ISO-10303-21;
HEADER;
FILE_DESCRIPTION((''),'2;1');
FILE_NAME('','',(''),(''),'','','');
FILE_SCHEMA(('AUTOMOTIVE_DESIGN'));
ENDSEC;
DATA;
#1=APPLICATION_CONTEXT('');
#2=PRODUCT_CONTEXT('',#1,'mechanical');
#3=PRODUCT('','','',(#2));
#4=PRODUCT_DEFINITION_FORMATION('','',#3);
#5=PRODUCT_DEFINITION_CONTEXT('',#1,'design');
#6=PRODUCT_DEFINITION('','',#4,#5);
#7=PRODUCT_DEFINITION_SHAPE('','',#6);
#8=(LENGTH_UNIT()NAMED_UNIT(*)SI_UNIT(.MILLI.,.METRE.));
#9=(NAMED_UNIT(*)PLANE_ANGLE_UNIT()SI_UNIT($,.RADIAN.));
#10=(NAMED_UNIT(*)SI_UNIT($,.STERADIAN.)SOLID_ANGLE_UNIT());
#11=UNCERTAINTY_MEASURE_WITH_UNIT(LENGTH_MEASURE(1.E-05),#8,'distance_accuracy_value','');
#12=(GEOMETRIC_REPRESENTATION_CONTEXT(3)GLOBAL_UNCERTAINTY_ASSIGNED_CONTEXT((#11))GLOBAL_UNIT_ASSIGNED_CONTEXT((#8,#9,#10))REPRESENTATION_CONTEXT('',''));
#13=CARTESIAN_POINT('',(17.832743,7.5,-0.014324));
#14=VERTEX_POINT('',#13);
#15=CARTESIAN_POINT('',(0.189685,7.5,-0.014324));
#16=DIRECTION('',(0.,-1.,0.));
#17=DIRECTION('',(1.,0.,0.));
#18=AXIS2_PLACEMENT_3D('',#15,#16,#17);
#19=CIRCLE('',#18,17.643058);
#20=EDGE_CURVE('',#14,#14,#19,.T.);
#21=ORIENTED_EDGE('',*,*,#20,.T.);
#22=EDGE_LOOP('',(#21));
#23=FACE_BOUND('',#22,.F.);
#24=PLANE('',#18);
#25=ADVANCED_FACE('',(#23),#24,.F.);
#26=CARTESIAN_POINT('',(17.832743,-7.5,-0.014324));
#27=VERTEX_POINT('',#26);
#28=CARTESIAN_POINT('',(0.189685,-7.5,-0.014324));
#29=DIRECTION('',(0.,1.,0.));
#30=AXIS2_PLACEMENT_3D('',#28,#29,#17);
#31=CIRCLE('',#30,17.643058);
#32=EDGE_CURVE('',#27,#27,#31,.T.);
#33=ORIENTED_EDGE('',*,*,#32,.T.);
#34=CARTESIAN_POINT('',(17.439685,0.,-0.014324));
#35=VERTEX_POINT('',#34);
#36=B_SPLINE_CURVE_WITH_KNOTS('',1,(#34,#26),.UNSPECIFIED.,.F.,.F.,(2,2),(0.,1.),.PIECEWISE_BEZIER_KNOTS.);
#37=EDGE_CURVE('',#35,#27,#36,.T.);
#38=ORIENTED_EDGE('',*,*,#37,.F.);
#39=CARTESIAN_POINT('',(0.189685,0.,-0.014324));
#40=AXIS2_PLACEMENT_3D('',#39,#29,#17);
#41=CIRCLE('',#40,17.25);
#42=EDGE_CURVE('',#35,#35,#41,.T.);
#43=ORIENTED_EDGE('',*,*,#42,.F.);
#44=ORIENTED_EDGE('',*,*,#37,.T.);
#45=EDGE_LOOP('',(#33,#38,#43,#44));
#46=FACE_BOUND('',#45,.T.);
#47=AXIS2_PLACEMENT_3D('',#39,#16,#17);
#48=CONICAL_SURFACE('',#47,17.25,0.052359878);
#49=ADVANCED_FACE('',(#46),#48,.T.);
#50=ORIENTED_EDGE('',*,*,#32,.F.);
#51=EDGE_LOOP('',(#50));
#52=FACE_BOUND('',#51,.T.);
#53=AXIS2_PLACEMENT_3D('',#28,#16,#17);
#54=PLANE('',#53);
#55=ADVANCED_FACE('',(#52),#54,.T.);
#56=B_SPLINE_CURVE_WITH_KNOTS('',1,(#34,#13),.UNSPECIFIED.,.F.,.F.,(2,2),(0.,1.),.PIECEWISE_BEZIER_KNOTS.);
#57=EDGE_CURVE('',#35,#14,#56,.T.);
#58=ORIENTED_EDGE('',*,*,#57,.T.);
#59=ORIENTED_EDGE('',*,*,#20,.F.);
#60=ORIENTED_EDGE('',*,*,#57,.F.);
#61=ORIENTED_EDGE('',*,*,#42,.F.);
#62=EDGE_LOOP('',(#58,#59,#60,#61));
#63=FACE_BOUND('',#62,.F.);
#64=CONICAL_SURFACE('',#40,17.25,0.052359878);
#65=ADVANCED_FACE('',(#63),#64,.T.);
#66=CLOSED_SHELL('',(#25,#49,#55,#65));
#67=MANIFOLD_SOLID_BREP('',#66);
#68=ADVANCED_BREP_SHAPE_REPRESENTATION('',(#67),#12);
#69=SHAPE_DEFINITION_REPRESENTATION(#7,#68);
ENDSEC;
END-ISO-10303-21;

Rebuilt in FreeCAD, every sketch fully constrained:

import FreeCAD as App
import Part
import Sketcher
from FreeCAD import Vector

doc = App.newDocument("Part")
body = doc.addObject("PartDesign::Body", "Body")

# Sketch on XZ plane
sketch1 = body.newObject("Sketcher::SketchObject", "Sketch")
sketch1.AttachmentSupport = (doc.getObject("XZ_Plane"), [""])
sketch1.MapMode = "FlatFace"
sketch1.addGeometry(Part.Circle(Vector(0.189685, -0.014324, 0), Vector(0, 0, 1), 17.25), False)
sketch1.addConstraint([
    Sketcher.Constraint("Diameter", 0, 34.5),
    Sketcher.Constraint("DistanceX", -1, 1, 0, 3, 0.189685),
    Sketcher.Constraint("DistanceY", 0, 3, -1, 1, 0.014324),
])
pad1 = body.newObject("PartDesign::Pad", "Pad")
pad1.Profile = sketch1
pad1.Length = 15
pad1.Midplane = True
pad1.TaperAngle = 3

doc.recompute()
